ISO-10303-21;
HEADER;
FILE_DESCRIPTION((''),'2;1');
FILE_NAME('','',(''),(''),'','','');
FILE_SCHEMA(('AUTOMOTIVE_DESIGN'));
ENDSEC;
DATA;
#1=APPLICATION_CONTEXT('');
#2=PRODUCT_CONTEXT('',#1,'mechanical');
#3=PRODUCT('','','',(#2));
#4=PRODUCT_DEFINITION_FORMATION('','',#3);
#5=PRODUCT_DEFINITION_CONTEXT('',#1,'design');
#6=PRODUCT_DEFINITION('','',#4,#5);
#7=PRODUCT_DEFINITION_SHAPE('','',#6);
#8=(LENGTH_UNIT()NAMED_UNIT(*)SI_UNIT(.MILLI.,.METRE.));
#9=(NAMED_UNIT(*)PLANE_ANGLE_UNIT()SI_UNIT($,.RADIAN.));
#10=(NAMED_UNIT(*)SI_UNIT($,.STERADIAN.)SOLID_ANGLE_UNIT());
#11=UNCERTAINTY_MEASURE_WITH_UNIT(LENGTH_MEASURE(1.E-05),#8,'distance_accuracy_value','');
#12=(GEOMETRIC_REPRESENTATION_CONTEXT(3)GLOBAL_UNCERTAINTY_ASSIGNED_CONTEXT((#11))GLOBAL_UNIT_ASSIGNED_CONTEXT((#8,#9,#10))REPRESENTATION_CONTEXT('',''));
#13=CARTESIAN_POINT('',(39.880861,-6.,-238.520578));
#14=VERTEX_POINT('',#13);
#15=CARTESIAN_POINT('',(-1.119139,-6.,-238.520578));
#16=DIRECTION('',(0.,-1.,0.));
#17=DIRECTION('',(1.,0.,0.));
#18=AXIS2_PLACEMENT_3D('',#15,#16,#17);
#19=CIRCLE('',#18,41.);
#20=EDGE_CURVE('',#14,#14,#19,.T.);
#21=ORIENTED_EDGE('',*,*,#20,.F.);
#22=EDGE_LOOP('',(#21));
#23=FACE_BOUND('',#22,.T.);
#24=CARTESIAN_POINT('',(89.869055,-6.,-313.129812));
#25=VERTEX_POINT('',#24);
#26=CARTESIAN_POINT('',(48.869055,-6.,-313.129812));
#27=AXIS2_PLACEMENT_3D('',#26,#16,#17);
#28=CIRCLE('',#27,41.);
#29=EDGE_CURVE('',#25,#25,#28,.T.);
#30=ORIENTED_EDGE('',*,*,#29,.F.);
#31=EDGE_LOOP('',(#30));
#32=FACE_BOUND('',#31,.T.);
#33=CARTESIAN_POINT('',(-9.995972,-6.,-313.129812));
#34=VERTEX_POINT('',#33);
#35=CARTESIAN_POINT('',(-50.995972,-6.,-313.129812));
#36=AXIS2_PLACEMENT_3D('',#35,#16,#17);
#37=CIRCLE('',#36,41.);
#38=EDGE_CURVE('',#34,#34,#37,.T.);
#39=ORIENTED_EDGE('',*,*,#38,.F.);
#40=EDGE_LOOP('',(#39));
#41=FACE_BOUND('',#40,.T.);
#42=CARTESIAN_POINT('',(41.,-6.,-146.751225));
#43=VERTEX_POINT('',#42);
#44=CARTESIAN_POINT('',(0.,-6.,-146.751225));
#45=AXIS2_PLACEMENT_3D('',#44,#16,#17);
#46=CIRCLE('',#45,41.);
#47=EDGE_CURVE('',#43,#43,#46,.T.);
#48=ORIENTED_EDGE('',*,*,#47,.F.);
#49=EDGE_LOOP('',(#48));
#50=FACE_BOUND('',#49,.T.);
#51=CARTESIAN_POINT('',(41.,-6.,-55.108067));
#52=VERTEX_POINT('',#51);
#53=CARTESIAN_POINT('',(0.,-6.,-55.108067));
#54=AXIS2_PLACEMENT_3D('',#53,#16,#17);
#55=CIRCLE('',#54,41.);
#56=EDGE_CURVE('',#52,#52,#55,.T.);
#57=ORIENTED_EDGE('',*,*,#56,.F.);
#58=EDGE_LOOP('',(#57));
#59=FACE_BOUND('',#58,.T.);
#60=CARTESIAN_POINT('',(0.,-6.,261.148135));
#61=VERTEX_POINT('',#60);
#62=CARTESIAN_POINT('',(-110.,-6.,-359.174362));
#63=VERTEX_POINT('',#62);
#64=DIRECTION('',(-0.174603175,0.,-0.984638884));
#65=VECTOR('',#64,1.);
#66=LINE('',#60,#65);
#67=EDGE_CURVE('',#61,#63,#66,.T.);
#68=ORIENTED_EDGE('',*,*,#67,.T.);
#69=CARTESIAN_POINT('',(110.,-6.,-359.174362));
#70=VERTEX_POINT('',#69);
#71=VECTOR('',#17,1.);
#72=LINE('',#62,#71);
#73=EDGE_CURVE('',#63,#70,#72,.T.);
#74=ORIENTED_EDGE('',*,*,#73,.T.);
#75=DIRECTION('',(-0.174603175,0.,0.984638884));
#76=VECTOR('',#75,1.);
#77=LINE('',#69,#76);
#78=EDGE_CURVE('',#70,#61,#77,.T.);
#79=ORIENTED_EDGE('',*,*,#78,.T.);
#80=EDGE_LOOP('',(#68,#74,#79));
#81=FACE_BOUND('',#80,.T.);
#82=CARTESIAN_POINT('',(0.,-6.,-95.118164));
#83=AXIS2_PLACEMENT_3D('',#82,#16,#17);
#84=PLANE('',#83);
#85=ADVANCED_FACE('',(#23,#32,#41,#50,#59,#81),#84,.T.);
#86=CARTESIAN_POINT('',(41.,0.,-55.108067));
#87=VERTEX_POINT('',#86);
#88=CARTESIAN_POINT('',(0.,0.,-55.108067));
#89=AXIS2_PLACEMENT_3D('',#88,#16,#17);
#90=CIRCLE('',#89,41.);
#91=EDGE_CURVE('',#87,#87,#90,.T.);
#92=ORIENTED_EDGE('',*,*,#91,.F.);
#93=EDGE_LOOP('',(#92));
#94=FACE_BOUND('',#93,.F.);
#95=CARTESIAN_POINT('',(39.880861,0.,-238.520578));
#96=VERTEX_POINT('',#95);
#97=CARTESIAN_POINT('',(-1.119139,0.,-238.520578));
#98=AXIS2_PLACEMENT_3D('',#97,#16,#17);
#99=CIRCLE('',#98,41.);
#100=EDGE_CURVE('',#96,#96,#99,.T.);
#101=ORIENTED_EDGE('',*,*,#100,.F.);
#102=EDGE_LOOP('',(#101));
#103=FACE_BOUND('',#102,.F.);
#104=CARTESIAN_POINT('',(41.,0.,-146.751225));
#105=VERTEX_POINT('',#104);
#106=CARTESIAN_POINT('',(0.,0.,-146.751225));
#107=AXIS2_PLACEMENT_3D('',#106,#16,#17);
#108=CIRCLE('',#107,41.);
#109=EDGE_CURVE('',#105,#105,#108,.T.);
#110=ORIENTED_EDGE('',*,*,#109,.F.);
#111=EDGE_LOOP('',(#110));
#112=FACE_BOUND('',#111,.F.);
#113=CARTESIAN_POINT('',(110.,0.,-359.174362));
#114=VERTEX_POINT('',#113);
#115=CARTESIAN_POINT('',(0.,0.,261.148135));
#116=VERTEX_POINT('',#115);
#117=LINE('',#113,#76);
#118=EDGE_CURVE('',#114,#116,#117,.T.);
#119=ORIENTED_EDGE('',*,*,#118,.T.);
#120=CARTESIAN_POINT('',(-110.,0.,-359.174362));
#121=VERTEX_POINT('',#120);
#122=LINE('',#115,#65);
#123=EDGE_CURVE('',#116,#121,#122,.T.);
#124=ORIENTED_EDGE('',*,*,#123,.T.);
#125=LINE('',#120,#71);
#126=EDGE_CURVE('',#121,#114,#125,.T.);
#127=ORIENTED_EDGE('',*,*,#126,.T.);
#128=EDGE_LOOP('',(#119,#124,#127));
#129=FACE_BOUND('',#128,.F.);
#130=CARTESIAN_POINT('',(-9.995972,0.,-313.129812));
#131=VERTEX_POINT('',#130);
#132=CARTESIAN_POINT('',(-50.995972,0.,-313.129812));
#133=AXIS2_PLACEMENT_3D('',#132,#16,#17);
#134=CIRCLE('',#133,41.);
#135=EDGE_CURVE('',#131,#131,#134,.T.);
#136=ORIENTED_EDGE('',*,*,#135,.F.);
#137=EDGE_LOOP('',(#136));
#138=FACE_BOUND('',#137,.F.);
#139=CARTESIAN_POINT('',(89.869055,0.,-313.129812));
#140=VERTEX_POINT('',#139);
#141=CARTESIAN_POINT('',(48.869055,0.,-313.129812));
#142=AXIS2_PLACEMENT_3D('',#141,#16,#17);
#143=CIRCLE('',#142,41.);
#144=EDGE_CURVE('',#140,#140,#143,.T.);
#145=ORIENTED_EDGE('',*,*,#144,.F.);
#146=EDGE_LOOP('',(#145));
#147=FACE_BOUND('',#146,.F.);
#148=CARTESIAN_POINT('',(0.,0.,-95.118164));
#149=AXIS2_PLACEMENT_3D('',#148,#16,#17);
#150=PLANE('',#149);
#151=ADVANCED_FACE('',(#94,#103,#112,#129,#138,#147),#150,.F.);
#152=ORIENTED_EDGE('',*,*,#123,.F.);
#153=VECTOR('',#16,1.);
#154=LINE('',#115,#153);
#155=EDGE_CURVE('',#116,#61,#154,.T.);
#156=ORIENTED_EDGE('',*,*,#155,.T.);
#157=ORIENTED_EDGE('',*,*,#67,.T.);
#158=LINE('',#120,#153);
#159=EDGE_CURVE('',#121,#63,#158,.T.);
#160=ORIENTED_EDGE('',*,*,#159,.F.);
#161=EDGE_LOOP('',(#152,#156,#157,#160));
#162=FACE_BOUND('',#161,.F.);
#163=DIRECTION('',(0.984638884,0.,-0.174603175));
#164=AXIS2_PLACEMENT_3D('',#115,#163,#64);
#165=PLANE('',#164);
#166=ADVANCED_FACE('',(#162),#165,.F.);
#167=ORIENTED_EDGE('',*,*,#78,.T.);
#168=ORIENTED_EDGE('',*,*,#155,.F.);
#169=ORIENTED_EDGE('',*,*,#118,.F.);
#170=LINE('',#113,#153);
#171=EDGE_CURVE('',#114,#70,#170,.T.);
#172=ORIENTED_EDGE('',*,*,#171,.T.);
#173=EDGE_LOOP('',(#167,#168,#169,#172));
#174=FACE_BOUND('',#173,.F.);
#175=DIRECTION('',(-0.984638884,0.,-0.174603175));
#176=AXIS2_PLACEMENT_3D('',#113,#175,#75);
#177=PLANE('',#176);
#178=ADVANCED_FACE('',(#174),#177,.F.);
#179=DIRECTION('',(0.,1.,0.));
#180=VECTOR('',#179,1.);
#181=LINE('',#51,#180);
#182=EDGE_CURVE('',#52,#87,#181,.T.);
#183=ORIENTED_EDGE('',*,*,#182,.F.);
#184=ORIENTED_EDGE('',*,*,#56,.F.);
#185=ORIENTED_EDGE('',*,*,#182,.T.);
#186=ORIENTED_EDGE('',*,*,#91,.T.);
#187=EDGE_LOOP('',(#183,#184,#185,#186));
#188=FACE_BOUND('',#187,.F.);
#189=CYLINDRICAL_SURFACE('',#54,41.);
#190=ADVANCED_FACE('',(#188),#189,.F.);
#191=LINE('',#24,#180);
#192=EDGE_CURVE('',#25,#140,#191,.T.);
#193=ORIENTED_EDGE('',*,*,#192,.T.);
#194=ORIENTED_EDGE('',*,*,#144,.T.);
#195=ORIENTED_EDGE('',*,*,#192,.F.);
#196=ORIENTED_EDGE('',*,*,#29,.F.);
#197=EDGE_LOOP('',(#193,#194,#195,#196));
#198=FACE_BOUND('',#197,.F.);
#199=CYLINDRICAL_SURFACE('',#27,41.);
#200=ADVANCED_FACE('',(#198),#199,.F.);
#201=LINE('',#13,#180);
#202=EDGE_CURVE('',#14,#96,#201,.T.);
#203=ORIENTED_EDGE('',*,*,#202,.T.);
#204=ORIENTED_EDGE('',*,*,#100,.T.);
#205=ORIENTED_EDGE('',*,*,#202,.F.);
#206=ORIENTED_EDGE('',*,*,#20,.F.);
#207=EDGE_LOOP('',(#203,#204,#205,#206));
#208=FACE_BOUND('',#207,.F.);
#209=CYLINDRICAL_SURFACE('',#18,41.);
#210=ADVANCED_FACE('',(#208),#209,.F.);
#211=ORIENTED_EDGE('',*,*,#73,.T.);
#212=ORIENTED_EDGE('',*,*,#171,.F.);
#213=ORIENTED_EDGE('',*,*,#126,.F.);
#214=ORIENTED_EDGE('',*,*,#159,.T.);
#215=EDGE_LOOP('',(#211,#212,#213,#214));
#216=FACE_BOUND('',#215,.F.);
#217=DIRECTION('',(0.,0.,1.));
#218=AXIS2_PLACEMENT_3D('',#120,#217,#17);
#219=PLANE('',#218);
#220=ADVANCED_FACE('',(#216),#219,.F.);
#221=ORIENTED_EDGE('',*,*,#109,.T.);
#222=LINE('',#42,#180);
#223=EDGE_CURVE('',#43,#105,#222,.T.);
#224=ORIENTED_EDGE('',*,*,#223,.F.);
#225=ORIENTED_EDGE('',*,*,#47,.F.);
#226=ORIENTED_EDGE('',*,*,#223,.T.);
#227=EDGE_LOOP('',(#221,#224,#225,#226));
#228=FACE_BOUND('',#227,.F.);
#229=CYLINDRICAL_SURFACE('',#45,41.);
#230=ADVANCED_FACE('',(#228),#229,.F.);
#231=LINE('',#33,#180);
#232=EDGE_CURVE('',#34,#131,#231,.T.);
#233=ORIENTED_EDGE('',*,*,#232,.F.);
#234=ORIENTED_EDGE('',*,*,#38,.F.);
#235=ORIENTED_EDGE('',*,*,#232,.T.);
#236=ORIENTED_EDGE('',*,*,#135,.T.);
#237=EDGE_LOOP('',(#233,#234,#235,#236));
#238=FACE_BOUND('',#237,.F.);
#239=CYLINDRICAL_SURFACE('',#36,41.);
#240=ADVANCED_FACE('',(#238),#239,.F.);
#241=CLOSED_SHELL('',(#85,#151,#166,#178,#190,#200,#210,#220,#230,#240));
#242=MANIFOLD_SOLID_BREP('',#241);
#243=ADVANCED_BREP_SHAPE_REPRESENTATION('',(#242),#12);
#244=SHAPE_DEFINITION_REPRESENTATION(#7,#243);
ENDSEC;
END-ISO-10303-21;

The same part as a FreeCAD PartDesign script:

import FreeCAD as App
import Part
import Sketcher

V = App.Vector

doc = App.newDocument("Part")
body = doc.addObject("PartDesign::Body", "Body")

# Sketch on XZ plane
sketch1 = body.newObject("Sketcher::SketchObject", "Sketch")
sketch1.AttachmentSupport = (doc.getObject("XZ_Plane"), [""])
sketch1.MapMode = "FlatFace"
sketch1.addGeometry([
    Part.LineSegment(V(110, -359.174362, 0), V(0, 261.148135, 0)),
    Part.LineSegment(V(0, 261.148135, 0), V(-110, -359.174362, 0)),
    Part.LineSegment(V(-110, -359.174362, 0), V(110, -359.174362, 0)),
], False)
sketch1.addConstraint([
    Sketcher.Constraint("Coincident", 0, 2, 1, 1),
    Sketcher.Constraint("Coincident", 1, 2, 2, 1),
    Sketcher.Constraint("Coincident", 2, 2, 0, 1),
    Sketcher.Constraint("Horizontal", 2),
    Sketcher.Constraint("PointOnObject", 0, 2, -2),
    Sketcher.Constraint("Equal", 0, 1),
    Sketcher.Constraint("DistanceX", 2, 1, 2, 2, 220.0),
    Sketcher.Constraint("Distance", 0, 630.0),
    Sketcher.Constraint("DistanceY", 1, 2, -1, 1, 359.174362),
])
pad1 = body.newObject("PartDesign::Pad", "Pad")
pad1.Profile = sketch1
pad1.Length = 6

# Sketch on XZ plane
sketch2 = body.newObject("Sketcher::SketchObject", "Sketch001")
sketch2.AttachmentSupport = (doc.getObject("XZ_Plane"), [""])
sketch2.MapMode = "FlatFace"
sketch2.AttachmentOffset = App.Placement(V(0, 0, 6), App.Rotation())
sketch2.addGeometry([
    Part.Circle(V(48.869055, -313.129812, 0), V(0, 0, 1), 41),  # 0
    Part.Circle(V(-50.995972, -313.129812, 0), V(0, 0, 1), 41),  # 1
    Part.Circle(V(-1.119139, -238.520578, 0), V(0, 0, 1), 41),  # 2
    Part.Circle(V(0, -146.751225, 0), V(0, 0, 1), 41),  # 3
    Part.Circle(V(0, -55.108067, 0), V(0, 0, 1), 41),  # 4
], False)
sketch2.addConstraint([
    Sketcher.Constraint("Equal", 0, 1),
    Sketcher.Constraint("Equal", 1, 2),
    Sketcher.Constraint("Equal", 2, 3),
    Sketcher.Constraint("Equal", 3, 4),
    Sketcher.Constraint("PointOnObject", 3, 3, -2),
    Sketcher.Constraint("PointOnObject", 4, 3, -2),
    Sketcher.Constraint("Horizontal", 0, 3, 1, 3),
    Sketcher.Constraint("Diameter", 0, 82.0),
    Sketcher.Constraint("DistanceY", 0, 3, -1, 1, 313.129812),
    Sketcher.Constraint("DistanceX", 2, 3, -1, 1, 1.119139),
    Sketcher.Constraint("DistanceY", 2, 3, -1, 1, 238.520578),
    Sketcher.Constraint("DistanceY", 3, 3, 4, 3, 91.643158),
    Sketcher.Constraint("DistanceY", 2, 3, 4, 3, 183.412511),
    Sketcher.Constraint("DistanceX", -1, 1, 0, 3, 48.869055),
    Sketcher.Constraint("DistanceX", 1, 3, -1, 1, 50.995972),
])
pocket1 = body.newObject("PartDesign::Pocket", "Pocket")
pocket1.Profile = sketch2
pocket1.Length = 164.338

doc.recompute()
